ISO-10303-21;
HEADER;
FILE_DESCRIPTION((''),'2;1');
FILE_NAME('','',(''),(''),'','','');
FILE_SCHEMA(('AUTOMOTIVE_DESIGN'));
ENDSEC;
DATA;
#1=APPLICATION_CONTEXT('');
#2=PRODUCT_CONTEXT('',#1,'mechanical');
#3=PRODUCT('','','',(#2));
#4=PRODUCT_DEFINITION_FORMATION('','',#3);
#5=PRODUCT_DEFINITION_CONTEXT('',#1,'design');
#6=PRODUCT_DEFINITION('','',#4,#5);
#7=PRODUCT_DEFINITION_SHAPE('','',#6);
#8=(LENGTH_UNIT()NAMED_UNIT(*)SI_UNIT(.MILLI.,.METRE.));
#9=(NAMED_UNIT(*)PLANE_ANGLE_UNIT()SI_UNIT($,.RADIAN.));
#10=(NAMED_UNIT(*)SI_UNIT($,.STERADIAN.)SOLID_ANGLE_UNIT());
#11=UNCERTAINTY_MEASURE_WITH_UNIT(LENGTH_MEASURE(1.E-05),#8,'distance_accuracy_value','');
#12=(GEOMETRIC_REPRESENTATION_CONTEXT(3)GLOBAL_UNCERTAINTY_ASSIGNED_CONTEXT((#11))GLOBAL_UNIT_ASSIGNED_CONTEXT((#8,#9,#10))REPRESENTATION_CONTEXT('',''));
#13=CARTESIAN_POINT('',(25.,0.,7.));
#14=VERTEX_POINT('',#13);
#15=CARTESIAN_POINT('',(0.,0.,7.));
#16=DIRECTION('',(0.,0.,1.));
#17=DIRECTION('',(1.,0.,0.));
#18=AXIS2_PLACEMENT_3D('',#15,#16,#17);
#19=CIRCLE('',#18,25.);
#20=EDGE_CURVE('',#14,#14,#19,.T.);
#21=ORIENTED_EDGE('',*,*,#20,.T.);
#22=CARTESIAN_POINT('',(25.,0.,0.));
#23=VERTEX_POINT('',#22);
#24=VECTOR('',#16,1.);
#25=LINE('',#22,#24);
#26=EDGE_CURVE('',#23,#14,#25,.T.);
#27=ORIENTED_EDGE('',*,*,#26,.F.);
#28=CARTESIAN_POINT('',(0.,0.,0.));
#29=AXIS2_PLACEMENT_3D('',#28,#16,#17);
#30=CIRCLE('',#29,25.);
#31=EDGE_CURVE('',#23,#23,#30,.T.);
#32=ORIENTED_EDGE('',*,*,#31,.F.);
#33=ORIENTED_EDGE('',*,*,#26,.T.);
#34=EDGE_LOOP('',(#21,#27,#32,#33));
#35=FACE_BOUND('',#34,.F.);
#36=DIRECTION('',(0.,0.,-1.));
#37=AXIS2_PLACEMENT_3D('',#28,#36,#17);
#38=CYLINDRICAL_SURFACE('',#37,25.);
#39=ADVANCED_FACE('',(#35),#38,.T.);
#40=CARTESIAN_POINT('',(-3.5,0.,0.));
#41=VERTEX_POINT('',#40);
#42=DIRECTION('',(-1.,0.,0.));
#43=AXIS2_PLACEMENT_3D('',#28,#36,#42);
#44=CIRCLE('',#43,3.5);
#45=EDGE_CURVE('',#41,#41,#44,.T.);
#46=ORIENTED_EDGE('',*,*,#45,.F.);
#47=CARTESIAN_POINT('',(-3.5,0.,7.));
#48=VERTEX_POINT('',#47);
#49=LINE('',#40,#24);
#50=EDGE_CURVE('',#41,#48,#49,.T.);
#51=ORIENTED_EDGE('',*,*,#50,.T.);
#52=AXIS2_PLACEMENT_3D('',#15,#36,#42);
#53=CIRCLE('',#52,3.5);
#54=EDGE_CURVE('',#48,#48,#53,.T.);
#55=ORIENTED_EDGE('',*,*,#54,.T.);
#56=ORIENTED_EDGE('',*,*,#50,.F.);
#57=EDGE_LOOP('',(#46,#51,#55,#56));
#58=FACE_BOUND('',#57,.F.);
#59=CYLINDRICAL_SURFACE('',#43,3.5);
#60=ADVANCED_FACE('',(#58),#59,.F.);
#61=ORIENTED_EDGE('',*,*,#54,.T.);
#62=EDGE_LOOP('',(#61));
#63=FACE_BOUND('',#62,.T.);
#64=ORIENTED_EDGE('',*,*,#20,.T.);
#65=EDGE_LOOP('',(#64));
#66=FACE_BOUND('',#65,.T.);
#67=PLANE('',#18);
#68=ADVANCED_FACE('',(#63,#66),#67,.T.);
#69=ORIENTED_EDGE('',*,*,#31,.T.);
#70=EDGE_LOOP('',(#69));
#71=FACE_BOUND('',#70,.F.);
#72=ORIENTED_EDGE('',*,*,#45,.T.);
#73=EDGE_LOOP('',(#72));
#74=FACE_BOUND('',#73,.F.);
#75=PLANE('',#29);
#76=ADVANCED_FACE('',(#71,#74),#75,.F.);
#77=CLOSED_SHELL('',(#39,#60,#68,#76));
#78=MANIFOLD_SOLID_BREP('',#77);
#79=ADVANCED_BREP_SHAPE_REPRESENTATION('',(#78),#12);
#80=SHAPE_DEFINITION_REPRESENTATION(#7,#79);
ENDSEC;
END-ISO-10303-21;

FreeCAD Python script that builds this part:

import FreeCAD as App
import Part
import Sketcher
from FreeCAD import Vector
Q = App.Units.Quantity

doc = App.newDocument("Part")
body = doc.addObject("PartDesign::Body", "Body")

# Sketch on XY plane
sketch1 = body.newObject("Sketcher::SketchObject", "Sketch")
sketch1.AttachmentSupport = (doc.getObject("XY_Plane"), [""])
sketch1.MapMode = "FlatFace"
sketch1.addGeometry(Part.Circle(Vector(0, 0, 0), Vector(0, 0, 1), 25), False)
sketch1.addConstraint([
    Sketcher.Constraint("Coincident", 0, 3, -1, 1),
    Sketcher.Constraint("Diameter", 0, Q("50 mm")),
])
pad1 = body.newObject("PartDesign::Pad", "Pad")
pad1.Profile = sketch1
pad1.Length = 7

# Sketch on XY plane
sketch2 = body.newObject("Sketcher::SketchObject", "Sketch001")
sketch2.AttachmentSupport = (doc.getObject("XY_Plane"), [""])
sketch2.MapMode = "FlatFace"
sketch2.addGeometry(Part.Circle(Vector(0, 0, 0), Vector(0, 0, 1), 3.5), False)
sketch2.addConstraint([
    Sketcher.Constraint("Coincident", 0, 3, -1, 1),
    Sketcher.Constraint("Diameter", 0, Q("7 mm")),
])
pocket1 = body.newObject("PartDesign::Pocket", "Pocket")
pocket1.Profile = sketch2
pocket1.Length = 7
pocket1.Reversed = True

doc.recompute()
